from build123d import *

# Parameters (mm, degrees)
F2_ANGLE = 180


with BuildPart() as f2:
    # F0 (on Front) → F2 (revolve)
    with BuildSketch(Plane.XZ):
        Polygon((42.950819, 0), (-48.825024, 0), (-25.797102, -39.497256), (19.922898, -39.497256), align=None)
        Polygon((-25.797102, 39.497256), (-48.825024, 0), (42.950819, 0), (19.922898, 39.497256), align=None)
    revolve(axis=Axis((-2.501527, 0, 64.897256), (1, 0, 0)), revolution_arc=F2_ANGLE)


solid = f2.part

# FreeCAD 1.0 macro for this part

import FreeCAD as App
import Part
import Sketcher
Q = App.Units.Quantity


def add_polygon(sketch, points):
    """Adds a closed chain of lines whose ends are joined by coincident constraints."""
    first, n = sketch.GeometryCount, len(points)
    for a, b in zip(points, points[1:] + points[:1]):
        sketch.addGeometry(Part.LineSegment(App.Vector(*a, 0), App.Vector(*b, 0)), False)
    for i in range(n):
        sketch.addConstraint(Sketcher.Constraint("Coincident", first + i, 2, first + (i + 1) % n, 1))

doc = App.newDocument("Part")
body = doc.addObject("PartDesign::Body", "Body")

sketch1 = body.newObject("Sketcher::SketchObject", "Sketch")
sketch1.AttachmentSupport = (doc.getObject("XZ_Plane"), [""])
sketch1.MapMode = "FlatFace"
add_polygon(sketch1, [(-49, 0), (-26, -39), (20, -39), (43, 0), (20, 39), (-26, 39)])
sketch1.addGeometry(Part.LineSegment(App.Vector(-49, 65, 0), App.Vector(43, 65, 0)), True)
sketch1.addConstraint(Sketcher.Constraint("Horizontal", 1))
sketch1.addConstraint(Sketcher.Constraint("Horizontal", 4))
sketch1.addConstraint(Sketcher.Constraint("Horizontal", 6))
sketch1.addConstraint(Sketcher.Constraint("Symmetric", 1, 2, 3, 2, -1))
sketch1.addConstraint(Sketcher.Constraint("PointOnObject", 2, 2, -1))
sketch1.addConstraint(Sketcher.Constraint("PointOnObject", 5, 2, -1))
sketch1.addConstraint(Sketcher.Constraint("Parallel", 0, 3))
sketch1.addConstraint(Sketcher.Constraint("Parallel", 2, 5))
sketch1.addConstraint(Sketcher.Constraint("Vertical", 5, 2, 6, 1))
sketch1.addConstraint(Sketcher.Constraint("Vertical", 2, 2, 6, 2))
sketch1.addConstraint(Sketcher.Constraint("DistanceX", 1, 1, 1, 2, Q("1.8 in")))
sketch1.addConstraint(Sketcher.Constraint("DistanceY", 4, 2, 6, 1, Q("1 in")))
sketch1.addConstraint(Sketcher.Constraint("Distance", 0, Q("1.8 in")))
sketch1.addConstraint(Sketcher.Constraint("DistanceX", 0, 2, -1, 1, 25.797102))
sketch1.addConstraint(Sketcher.Constraint("DistanceX", 6, 1, 6, 2, 91.775843))
revolution = body.newObject("PartDesign::Revolution", "Revolution")
revolution.Profile = sketch1
revolution.ReferenceAxis = (sketch1, ["Axis0"])
revolution.Angle = 180

doc.recompute()
